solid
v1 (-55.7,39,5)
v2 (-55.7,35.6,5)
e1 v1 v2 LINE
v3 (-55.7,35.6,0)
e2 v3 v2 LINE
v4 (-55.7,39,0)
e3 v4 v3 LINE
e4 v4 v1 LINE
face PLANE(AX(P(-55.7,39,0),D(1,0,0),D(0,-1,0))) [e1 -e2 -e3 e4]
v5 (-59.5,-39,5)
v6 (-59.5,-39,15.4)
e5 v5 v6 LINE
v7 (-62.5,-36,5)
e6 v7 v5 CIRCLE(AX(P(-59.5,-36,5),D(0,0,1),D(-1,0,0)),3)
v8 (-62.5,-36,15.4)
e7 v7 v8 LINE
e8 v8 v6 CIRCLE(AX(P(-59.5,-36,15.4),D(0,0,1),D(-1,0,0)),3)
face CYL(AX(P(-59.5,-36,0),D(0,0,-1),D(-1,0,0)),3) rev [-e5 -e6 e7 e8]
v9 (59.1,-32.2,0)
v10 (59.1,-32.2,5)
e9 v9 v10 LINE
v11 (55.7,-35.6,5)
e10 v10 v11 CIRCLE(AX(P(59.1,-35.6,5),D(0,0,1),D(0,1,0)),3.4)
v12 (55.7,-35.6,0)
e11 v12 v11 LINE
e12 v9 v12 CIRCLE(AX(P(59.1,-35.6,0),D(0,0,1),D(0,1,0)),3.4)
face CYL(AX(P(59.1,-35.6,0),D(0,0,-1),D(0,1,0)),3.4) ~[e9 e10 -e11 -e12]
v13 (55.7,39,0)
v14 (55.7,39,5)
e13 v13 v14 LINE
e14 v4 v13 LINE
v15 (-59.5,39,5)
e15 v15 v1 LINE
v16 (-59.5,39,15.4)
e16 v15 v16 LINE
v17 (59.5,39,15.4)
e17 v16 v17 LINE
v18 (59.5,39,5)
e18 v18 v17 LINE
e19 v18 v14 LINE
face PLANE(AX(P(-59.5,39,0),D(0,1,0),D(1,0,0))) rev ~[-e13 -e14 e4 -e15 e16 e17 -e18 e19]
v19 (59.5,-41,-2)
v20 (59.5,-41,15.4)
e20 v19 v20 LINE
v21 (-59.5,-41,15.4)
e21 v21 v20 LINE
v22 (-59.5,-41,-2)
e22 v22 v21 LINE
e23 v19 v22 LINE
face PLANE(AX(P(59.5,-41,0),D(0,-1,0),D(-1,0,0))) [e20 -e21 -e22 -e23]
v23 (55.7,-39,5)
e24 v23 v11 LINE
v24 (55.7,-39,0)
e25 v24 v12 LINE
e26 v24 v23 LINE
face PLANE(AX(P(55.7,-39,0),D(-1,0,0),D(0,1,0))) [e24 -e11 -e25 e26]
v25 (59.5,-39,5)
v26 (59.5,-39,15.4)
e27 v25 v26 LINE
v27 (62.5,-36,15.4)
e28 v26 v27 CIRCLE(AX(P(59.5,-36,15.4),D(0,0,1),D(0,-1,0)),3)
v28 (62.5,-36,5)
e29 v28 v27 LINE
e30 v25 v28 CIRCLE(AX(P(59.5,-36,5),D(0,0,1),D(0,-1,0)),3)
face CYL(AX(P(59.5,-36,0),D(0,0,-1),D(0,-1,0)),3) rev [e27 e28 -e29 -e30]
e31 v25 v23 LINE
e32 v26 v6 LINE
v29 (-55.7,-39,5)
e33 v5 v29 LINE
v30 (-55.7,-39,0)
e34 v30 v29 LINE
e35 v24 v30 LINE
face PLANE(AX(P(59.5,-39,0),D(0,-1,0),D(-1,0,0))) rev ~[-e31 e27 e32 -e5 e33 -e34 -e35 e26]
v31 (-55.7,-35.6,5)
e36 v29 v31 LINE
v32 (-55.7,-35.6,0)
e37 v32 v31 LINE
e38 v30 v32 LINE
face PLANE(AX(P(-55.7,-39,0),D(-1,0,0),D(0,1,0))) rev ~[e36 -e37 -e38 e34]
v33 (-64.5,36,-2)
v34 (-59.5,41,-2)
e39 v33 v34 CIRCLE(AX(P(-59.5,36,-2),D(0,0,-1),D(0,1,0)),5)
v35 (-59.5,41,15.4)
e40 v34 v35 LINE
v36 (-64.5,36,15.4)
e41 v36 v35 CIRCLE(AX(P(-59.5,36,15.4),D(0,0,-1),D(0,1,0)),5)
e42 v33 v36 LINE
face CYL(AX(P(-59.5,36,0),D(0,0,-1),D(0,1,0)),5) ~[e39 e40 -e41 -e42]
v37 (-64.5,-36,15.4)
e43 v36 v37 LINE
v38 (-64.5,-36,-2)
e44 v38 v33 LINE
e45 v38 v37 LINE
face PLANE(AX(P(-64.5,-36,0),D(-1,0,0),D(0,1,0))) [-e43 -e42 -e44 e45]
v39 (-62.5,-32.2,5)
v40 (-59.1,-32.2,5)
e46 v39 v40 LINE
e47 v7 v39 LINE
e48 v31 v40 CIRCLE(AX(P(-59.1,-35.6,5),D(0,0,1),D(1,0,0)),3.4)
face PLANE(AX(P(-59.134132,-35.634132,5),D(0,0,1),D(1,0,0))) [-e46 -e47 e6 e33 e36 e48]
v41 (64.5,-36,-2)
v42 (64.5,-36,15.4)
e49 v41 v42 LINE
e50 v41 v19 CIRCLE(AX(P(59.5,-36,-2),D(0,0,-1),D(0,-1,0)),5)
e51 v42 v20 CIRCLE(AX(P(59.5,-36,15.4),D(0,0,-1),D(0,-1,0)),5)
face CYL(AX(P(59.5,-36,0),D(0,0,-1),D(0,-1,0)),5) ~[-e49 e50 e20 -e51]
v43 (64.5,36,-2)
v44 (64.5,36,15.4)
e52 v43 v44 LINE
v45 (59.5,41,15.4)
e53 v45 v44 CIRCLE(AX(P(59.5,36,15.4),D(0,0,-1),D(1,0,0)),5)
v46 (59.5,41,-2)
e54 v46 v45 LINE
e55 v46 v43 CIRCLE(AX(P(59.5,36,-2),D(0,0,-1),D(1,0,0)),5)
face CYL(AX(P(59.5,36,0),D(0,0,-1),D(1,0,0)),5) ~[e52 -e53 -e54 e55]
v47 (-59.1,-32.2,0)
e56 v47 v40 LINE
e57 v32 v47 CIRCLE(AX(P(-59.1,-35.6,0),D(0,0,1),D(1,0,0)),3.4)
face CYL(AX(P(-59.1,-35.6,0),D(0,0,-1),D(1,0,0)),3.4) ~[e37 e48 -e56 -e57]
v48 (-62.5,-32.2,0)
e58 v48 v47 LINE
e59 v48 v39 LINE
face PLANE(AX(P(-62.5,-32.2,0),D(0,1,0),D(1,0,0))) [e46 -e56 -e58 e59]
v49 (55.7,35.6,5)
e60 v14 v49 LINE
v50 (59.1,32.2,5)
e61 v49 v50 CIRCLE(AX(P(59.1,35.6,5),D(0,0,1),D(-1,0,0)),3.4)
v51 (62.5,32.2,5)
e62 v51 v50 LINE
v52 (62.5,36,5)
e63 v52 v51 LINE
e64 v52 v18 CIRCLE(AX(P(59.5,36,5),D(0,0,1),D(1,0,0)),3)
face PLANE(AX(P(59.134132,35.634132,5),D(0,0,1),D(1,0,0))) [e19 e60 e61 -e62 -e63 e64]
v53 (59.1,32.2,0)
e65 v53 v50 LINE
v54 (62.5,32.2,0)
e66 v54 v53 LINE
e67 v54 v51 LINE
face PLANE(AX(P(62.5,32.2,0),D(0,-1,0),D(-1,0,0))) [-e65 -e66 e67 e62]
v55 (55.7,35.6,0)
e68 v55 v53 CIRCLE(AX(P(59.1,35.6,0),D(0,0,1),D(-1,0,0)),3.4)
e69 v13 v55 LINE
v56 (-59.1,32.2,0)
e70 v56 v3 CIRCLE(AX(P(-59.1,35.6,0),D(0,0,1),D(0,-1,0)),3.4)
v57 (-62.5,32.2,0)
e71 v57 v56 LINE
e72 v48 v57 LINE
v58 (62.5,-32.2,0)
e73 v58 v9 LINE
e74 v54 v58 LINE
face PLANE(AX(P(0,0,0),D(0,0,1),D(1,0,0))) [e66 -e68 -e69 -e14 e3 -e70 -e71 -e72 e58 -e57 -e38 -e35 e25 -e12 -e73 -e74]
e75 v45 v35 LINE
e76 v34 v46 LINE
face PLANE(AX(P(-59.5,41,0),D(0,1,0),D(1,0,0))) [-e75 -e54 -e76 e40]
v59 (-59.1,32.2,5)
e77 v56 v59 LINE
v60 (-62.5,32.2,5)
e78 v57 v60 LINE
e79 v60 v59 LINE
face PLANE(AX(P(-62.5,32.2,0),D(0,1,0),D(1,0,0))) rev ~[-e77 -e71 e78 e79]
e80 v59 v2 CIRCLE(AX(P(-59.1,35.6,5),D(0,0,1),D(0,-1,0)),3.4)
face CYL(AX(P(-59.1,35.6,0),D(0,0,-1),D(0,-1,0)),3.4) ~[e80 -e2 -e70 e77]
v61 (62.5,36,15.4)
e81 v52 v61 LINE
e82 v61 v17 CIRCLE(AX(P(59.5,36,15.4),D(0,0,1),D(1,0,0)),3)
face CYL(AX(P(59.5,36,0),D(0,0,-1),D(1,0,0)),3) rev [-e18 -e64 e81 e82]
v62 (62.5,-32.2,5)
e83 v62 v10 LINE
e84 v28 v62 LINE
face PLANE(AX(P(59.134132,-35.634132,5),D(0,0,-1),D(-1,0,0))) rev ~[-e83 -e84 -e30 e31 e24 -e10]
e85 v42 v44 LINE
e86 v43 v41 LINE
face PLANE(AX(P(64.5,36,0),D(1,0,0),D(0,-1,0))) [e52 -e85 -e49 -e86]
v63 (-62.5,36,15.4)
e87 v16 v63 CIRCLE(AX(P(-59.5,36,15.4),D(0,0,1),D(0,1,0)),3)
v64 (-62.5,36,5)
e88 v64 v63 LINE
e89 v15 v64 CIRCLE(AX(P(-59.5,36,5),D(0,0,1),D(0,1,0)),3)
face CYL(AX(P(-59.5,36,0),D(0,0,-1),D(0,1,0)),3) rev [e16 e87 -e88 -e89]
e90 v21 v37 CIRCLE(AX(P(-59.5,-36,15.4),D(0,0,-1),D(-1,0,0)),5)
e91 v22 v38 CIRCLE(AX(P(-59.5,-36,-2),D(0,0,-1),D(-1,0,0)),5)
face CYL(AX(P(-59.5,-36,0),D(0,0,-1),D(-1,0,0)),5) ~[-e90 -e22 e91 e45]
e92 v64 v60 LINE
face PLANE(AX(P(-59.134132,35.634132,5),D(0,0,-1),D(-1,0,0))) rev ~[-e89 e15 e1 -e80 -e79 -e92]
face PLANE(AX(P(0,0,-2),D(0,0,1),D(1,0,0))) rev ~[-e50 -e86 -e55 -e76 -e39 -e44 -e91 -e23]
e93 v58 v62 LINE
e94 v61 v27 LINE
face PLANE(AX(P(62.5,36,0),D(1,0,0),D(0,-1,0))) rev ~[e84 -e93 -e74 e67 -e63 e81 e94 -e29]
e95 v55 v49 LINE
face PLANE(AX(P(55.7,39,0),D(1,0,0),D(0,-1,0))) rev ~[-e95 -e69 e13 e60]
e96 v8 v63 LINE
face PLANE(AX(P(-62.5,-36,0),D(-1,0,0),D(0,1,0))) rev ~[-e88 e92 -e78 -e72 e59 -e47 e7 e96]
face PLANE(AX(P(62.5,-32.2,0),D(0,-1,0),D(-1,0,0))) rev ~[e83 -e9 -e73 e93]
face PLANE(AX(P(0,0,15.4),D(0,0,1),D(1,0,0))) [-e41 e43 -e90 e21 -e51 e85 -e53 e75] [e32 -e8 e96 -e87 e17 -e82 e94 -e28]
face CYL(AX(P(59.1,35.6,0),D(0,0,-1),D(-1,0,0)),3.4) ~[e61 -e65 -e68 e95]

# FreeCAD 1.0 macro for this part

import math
import FreeCAD as App
import Part
import Sketcher
from FreeCAD import Vector
Q = App.Units.Quantity


def faces_at(feature, points):
    """Names of the faces that lie closest to the given points."""
    faces = feature.Shape.Faces
    near = lambda p: min(range(len(faces)), key=lambda i: faces[i].distToShape(Part.Vertex(*p))[0])
    return sorted({f"Face{near(p) + 1}" for p in points})

doc = App.newDocument("Part")
body = doc.addObject("PartDesign::Body", "Body")

sketch1 = doc.addObject("Sketcher::SketchObject", "Sketch")
body.addObject(sketch1)
sketch1.AttachmentSupport = (doc.XY_Plane, [""])
sketch1.MapMode = "FlatFace"
sketch1.addGeometry([
    Part.ArcOfCircle(Part.Circle(Vector(-59.5, 36, 0), Vector(0, 0, 1), 3), math.radians(90), math.radians(180)),
    Part.LineSegment(Vector(-62.5, 36, 0), Vector(-62.5, -36, 0)),
    Part.ArcOfCircle(Part.Circle(Vector(-59.5, -36, 0), Vector(0, 0, 1), 3), math.radians(180), math.radians(270)),
    Part.LineSegment(Vector(-59.5, -39, 0), Vector(59.5, -39, 0)),
    Part.ArcOfCircle(Part.Circle(Vector(59.5, -36, 0), Vector(0, 0, 1), 3), math.radians(-90), math.radians(0)),
    Part.LineSegment(Vector(62.5, -36, 0), Vector(62.5, 36, 0)),
    Part.ArcOfCircle(Part.Circle(Vector(59.5, 36, 0), Vector(0, 0, 1), 3), math.radians(0), math.radians(90)),
    Part.LineSegment(Vector(59.5, 39, 0), Vector(-59.5, 39, 0)),
], False)
sketch1.addConstraint([
    Sketcher.Constraint("Tangent", 0, 2, 1, 1),
    Sketcher.Constraint("Tangent", 1, 2, 2, 1),
    Sketcher.Constraint("Tangent", 2, 2, 3, 1),
    Sketcher.Constraint("Tangent", 3, 2, 4, 1),
    Sketcher.Constraint("Tangent", 4, 2, 5, 1),
    Sketcher.Constraint("Tangent", 5, 2, 6, 1),
    Sketcher.Constraint("Tangent", 6, 2, 7, 1),
    Sketcher.Constraint("Tangent", 7, 2, 0, 1),
    Sketcher.Constraint("Vertical", 1),
    Sketcher.Constraint("Horizontal", 3),
    Sketcher.Constraint("Vertical", 5),
    Sketcher.Constraint("Horizontal", 7),
    Sketcher.Constraint("Equal", 0, 2),
    Sketcher.Constraint("Equal", 2, 4),
    Sketcher.Constraint("Equal", 4, 6),
    Sketcher.Constraint("Symmetric", 0, 3, 4, 3, -1, 1),
    Sketcher.Constraint("Radius", 0, Q("3 mm")),
    Sketcher.Constraint("DistanceX", 3, 1, 3, 2, Q("119 mm")),
    Sketcher.Constraint("DistanceY", 1, 2, 1, 1, Q("72 mm")),
])
pad1 = doc.addObject("PartDesign::Pad", "Pad")
body.addObject(pad1)
pad1.Profile = sketch1
pad1.Length = 15.4
doc.recompute()

thickness = doc.addObject("PartDesign::Thickness", "Thickness")
body.addObject(thickness)
thickness.Base = (pad1, faces_at(pad1, [(0, 0, 15.4)]))
thickness.Value = 2
thickness.Reversed = False
thickness.Join = "Intersection"

sketch2 = doc.addObject("Sketcher::SketchObject", "Sketch001")
body.addObject(sketch2)
sketch2.AttachmentSupport = (doc.XY_Plane, [""])
sketch2.MapMode = "FlatFace"
sketch2.addGeometry([
    Part.LineSegment(Vector(-55.7, 39, 0), Vector(-59.5, 39, 0)),
    Part.ArcOfCircle(Part.Circle(Vector(-59.5, 36, 0), Vector(0, 0, 1), 3), math.radians(90), math.radians(180)),
    Part.LineSegment(Vector(-62.5, 36, 0), Vector(-62.5, 32.2, 0)),
    Part.LineSegment(Vector(-62.5, 32.2, 0), Vector(-59.1, 32.2, 0)),
    Part.ArcOfCircle(Part.Circle(Vector(-59.1, 35.6, 0), Vector(0, 0, 1), 3.4), math.radians(-90), math.radians(0)),
    Part.LineSegment(Vector(-55.7, 35.6, 0), Vector(-55.7, 39, 0)),
    Part.LineSegment(Vector(-59.5, -39, 0), Vector(-55.7, -39, 0)),
    Part.LineSegment(Vector(-55.7, -39, 0), Vector(-55.7, -35.6, 0)),
    Part.ArcOfCircle(Part.Circle(Vector(-59.1, -35.6, 0), Vector(0, 0, 1), 3.4), math.radians(0), math.radians(90)),
    Part.LineSegment(Vector(-59.1, -32.2, 0), Vector(-62.5, -32.2, 0)),
    Part.LineSegment(Vector(-62.5, -32.2, 0), Vector(-62.5, -36, 0)),
    Part.ArcOfCircle(Part.Circle(Vector(-59.5, -36, 0), Vector(0, 0, 1), 3), math.radians(180), math.radians(270)),
    Part.LineSegment(Vector(59.5, 39, 0), Vector(55.7, 39, 0)),
    Part.LineSegment(Vector(55.7, 39, 0), Vector(55.7, 35.6, 0)),
    Part.ArcOfCircle(Part.Circle(Vector(59.1, 35.6, 0), Vector(0, 0, 1), 3.4), math.radians(180), math.radians(270)),
    Part.LineSegment(Vector(59.1, 32.2, 0), Vector(62.5, 32.2, 0)),
    Part.LineSegment(Vector(62.5, 32.2, 0), Vector(62.5, 36, 0)),
    Part.ArcOfCircle(Part.Circle(Vector(59.5, 36, 0), Vector(0, 0, 1), 3), math.radians(0), math.radians(90)),
    Part.LineSegment(Vector(55.7, -39, 0), Vector(59.5, -39, 0)),
    Part.ArcOfCircle(Part.Circle(Vector(59.5, -36, 0), Vector(0, 0, 1), 3), math.radians(-90), math.radians(0)),
    Part.LineSegment(Vector(62.5, -36, 0), Vector(62.5, -32.2, 0)),
    Part.LineSegment(Vector(62.5, -32.2, 0), Vector(59.1, -32.2, 0)),
    Part.ArcOfCircle(Part.Circle(Vector(59.1, -35.6, 0), Vector(0, 0, 1), 3.4), math.radians(90), math.radians(180)),
    Part.LineSegment(Vector(55.7, -35.6, 0), Vector(55.7, -39, 0)),
], False)
sketch2.addConstraint([
    Sketcher.Constraint("Tangent", 0, 2, 1, 1),
    Sketcher.Constraint("Tangent", 1, 2, 2, 1),
    Sketcher.Constraint("Coincident", 2, 2, 3, 1),
    Sketcher.Constraint("Tangent", 3, 2, 4, 1),
    Sketcher.Constraint("Tangent", 4, 2, 5, 1),
    Sketcher.Constraint("Coincident", 5, 2, 0, 1),
    Sketcher.Constraint("Coincident", 6, 2, 7, 1),
    Sketcher.Constraint("Tangent", 7, 2, 8, 1),
    Sketcher.Constraint("Tangent", 8, 2, 9, 1),
    Sketcher.Constraint("Coincident", 9, 2, 10, 1),
    Sketcher.Constraint("Tangent", 10, 2, 11, 1),
    Sketcher.Constraint("Tangent", 11, 2, 6, 1),
    Sketcher.Constraint("Coincident", 12, 2, 13, 1),
    Sketcher.Constraint("Tangent", 13, 2, 14, 1),
    Sketcher.Constraint("Tangent", 14, 2, 15, 1),
    Sketcher.Constraint("Coincident", 15, 2, 16, 1),
    Sketcher.Constraint("Tangent", 16, 2, 17, 1),
    Sketcher.Constraint("Tangent", 17, 2, 12, 1),
    Sketcher.Constraint("Tangent", 18, 2, 19, 1),
    Sketcher.Constraint("Tangent", 19, 2, 20, 1),
    Sketcher.Constraint("Coincident", 20, 2, 21, 1),
    Sketcher.Constraint("Tangent", 21, 2, 22, 1),
    Sketcher.Constraint("Tangent", 22, 2, 23, 1),
    Sketcher.Constraint("Coincident", 23, 2, 18, 1),
    Sketcher.Constraint("Horizontal", 0),
    Sketcher.Constraint("Vertical", 2),
    Sketcher.Constraint("Horizontal", 3),
    Sketcher.Constraint("Vertical", 5),
    Sketcher.Constraint("Horizontal", 6),
    Sketcher.Constraint("Vertical", 7),
    Sketcher.Constraint("Horizontal", 9),
    Sketcher.Constraint("Vertical", 10),
    Sketcher.Constraint("Horizontal", 12),
    Sketcher.Constraint("Vertical", 13),
    Sketcher.Constraint("Horizontal", 15),
    Sketcher.Constraint("Vertical", 16),
    Sketcher.Constraint("Horizontal", 18),
    Sketcher.Constraint("Vertical", 20),
    Sketcher.Constraint("Horizontal", 21),
    Sketcher.Constraint("Vertical", 23),
    Sketcher.Constraint("Equal", 4, 8),
    Sketcher.Constraint("Equal", 1, 11),
    Sketcher.Constraint("Equal", 8, 14),
    Sketcher.Constraint("Equal", 11, 17),
    Sketcher.Constraint("Equal", 17, 19),
    Sketcher.Constraint("Equal", 14, 22),
    Sketcher.Constraint("Symmetric", 8, 3, 14, 3, -1, 1),
    Sketcher.Constraint("Symmetric", 11, 3, 17, 3, -1, 1),
    Sketcher.Constraint("Symmetric", 1, 3, 19, 3, -1, 1),
    Sketcher.Constraint("Symmetric", 4, 3, 22, 3, -1, 1),
    Sketcher.Constraint("Symmetric", 4, 3, 14, 3, -2),
    Sketcher.Constraint("Symmetric", 1, 3, 17, 3, -2),
    Sketcher.Constraint("Equal", 18, 2),
    Sketcher.Constraint("Radius", 1, Q("3 mm")),
    Sketcher.Constraint("Radius", 4, Q("3.4 mm")),
    Sketcher.Constraint("DistanceX", 0, 2, 0, 1, Q("3.8 mm")),
    Sketcher.Constraint("DistanceY", -1, 1, 1, 3, Q("36 mm")),
    Sketcher.Constraint("DistanceX", 1, 3, 17, 3, Q("119 mm")),
])
pad2 = doc.addObject("PartDesign::Pad", "Pad001")
body.addObject(pad2)
pad2.Profile = sketch2
pad2.Length = 5

doc.recompute()
